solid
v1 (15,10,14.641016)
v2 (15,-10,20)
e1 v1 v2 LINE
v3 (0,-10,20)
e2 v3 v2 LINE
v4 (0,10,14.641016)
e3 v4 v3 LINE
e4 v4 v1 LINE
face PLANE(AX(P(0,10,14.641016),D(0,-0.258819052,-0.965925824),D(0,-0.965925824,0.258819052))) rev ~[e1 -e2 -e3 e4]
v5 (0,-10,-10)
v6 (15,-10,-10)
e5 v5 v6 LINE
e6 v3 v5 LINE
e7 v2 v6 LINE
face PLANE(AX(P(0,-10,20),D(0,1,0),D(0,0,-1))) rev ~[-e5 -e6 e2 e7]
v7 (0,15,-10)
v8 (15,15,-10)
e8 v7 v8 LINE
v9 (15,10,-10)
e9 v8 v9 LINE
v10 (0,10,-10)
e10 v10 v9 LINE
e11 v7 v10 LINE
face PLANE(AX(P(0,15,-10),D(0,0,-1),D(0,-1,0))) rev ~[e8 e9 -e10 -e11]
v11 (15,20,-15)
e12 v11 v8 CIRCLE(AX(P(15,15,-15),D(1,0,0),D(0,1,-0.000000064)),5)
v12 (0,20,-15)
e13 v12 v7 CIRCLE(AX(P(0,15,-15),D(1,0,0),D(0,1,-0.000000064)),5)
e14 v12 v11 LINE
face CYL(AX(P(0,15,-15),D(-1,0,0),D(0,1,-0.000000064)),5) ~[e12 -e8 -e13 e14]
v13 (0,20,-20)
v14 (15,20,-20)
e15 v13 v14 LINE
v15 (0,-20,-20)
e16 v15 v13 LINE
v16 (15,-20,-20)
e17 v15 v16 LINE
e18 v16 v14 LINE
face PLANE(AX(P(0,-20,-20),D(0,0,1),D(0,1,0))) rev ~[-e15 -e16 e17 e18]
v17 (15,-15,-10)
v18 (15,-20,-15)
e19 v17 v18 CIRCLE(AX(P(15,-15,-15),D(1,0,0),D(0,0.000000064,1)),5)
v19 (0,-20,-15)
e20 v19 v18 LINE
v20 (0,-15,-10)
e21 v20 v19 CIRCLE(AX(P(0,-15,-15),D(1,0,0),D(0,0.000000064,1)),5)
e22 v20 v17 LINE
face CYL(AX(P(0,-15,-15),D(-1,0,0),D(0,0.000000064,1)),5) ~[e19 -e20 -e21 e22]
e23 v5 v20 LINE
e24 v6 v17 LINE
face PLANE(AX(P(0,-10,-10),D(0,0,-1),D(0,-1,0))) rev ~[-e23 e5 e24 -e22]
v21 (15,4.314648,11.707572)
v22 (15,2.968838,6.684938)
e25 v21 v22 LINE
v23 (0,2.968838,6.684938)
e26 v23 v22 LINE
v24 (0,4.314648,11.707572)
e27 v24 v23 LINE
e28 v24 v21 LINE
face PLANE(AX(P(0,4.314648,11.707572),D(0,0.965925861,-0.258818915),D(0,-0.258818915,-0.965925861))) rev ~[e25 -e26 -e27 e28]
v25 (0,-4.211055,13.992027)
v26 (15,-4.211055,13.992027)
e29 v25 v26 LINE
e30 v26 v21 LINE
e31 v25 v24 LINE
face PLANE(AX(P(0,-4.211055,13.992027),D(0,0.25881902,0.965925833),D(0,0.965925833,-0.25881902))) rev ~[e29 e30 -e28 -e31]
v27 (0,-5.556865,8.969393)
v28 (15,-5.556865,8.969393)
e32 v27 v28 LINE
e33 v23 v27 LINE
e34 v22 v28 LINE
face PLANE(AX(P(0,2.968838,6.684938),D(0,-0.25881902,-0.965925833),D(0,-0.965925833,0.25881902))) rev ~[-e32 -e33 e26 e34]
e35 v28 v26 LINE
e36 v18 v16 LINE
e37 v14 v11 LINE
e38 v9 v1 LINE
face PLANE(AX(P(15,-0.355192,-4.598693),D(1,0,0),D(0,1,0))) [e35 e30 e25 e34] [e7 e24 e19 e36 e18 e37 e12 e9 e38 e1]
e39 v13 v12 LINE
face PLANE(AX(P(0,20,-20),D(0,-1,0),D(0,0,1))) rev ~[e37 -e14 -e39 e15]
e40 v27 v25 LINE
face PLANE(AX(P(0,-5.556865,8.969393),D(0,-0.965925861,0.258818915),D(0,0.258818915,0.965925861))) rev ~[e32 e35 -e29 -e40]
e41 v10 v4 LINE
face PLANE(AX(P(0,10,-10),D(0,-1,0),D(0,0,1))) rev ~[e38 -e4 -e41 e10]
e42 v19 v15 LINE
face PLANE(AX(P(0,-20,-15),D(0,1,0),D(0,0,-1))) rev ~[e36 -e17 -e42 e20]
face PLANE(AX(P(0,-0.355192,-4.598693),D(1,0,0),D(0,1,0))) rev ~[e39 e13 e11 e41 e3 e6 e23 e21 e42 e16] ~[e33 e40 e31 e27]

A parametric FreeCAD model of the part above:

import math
import FreeCAD as App
import Part
import Sketcher
from FreeCAD import Vector
Q = App.Units.Quantity

doc = App.newDocument("Part")
params = doc.addObject("Spreadsheet::Sheet", "Params")
for row, (alias, value) in enumerate([
    ("sketch1_radius", "5 mm"),
    ("sketch1_width", "40 mm"),
    ("sketch1_width2", "5 mm"),
    ("sketch1_height", "30 mm"),
    ("pad1_length", "15 mm"),
], start=1):
    params.set(f"A{row}", alias)
    params.set(f"B{row}", "=" + value)
    params.setAlias(f"B{row}", alias)

body = doc.addObject("PartDesign::Body", "Body")

# Sketch on YZ plane
sketch1 = body.newObject("Sketcher::SketchObject", "Sketch")
sketch1.AttachmentSupport = (doc.getObject("YZ_Plane"), [""])
sketch1.MapMode = "FlatFace"
sketch1.addGeometry(Part.LineSegment(Vector(-20, -20, 0), Vector(20, -20, 0)), False)
sketch1.addGeometry(Part.LineSegment(Vector(20, -20, 0), Vector(20, -15, 0)), False)
sketch1.addGeometry(Part.ArcOfCircle(Part.Circle(Vector(15, -15, 0), Vector(0, 0, 1), 5), math.radians(-0.000004), math.radians(90.000004)), False)
sketch1.addGeometry(Part.LineSegment(Vector(15, -10, 0), Vector(10, -10, 0)), False)
sketch1.addGeometry(Part.LineSegment(Vector(10, -10, 0), Vector(10, 14.641016, 0)), False)
sketch1.addGeometry(Part.LineSegment(Vector(10, 14.641016, 0), Vector(-10, 20, 0)), False)
sketch1.addGeometry(Part.LineSegment(Vector(-10, 20, 0), Vector(-10, -10, 0)), False)
sketch1.addGeometry(Part.LineSegment(Vector(-10, -10, 0), Vector(-15, -10, 0)), False)
sketch1.addGeometry(Part.ArcOfCircle(Part.Circle(Vector(-15, -15, 0), Vector(0, 0, 1), 5), math.radians(89.999996), math.radians(180.000004)), False)
sketch1.addGeometry(Part.LineSegment(Vector(-20, -15, 0), Vector(-20, -20, 0)), False)
sketch1.addGeometry(Part.LineSegment(Vector(-5.556865, 8.969393, 0), Vector(-4.211055, 13.992027, 0)), False)
sketch1.addGeometry(Part.LineSegment(Vector(-4.211055, 13.992027, 0), Vector(4.314648, 11.707572, 0)), False)
sketch1.addGeometry(Part.LineSegment(Vector(4.314648, 11.707572, 0), Vector(2.968838, 6.684938, 0)), False)
sketch1.addGeometry(Part.LineSegment(Vector(2.968838, 6.684938, 0), Vector(-5.556865, 8.969393, 0)), False)
sketch1.addConstraint(Sketcher.Constraint("Coincident", 0, 2, 1, 1))
sketch1.addConstraint(Sketcher.Constraint("Tangent", 1, 2, 2, 1))
sketch1.addConstraint(Sketcher.Constraint("Tangent", 2, 2, 3, 1))
sketch1.addConstraint(Sketcher.Constraint("Coincident", 3, 2, 4, 1))
sketch1.addConstraint(Sketcher.Constraint("Coincident", 4, 2, 5, 1))
sketch1.addConstraint(Sketcher.Constraint("Coincident", 5, 2, 6, 1))
sketch1.addConstraint(Sketcher.Constraint("Coincident", 6, 2, 7, 1))
sketch1.addConstraint(Sketcher.Constraint("Tangent", 7, 2, 8, 1))
sketch1.addConstraint(Sketcher.Constraint("Tangent", 8, 2, 9, 1))
sketch1.addConstraint(Sketcher.Constraint("Coincident", 9, 2, 0, 1))
sketch1.addConstraint(Sketcher.Constraint("Coincident", 10, 2, 11, 1))
sketch1.addConstraint(Sketcher.Constraint("Coincident", 11, 2, 12, 1))
sketch1.addConstraint(Sketcher.Constraint("Coincident", 12, 2, 13, 1))
sketch1.addConstraint(Sketcher.Constraint("Coincident", 13, 2, 10, 1))
sketch1.addConstraint(Sketcher.Constraint("Horizontal", 0))
sketch1.addConstraint(Sketcher.Constraint("Vertical", 1))
sketch1.addConstraint(Sketcher.Constraint("Horizontal", 3))
sketch1.addConstraint(Sketcher.Constraint("Vertical", 4))
sketch1.addConstraint(Sketcher.Constraint("Vertical", 6))
sketch1.addConstraint(Sketcher.Constraint("Horizontal", 7))
sketch1.addConstraint(Sketcher.Constraint("Vertical", 9))
sketch1.addConstraint(Sketcher.Constraint("Equal", 2, 8))
sketch1.addConstraint(Sketcher.Constraint("Symmetric", 2, 3, 8, 3, -2))
sketch1.addConstraint(Sketcher.Constraint("Perpendicular", 5, 10))
sketch1.addConstraint(Sketcher.Constraint("Perpendicular", 10, 11))
sketch1.addConstraint(Sketcher.Constraint("Perpendicular", 11, 12))
sketch1.addConstraint(Sketcher.Constraint("Perpendicular", 12, 13))
sketch1.addConstraint(Sketcher.Constraint("Equal", 3, 7))
sketch1.addConstraint(Sketcher.Constraint("Equal", 7, 1))
sketch1.addConstraint(Sketcher.Constraint("Radius", 2, 5.0))
sketch1.addConstraint(Sketcher.Constraint("DistanceX", 0, 1, 0, 2, 40.0))
sketch1.addConstraint(Sketcher.Constraint("DistanceX", 3, 2, 3, 1, 5.0))
sketch1.addConstraint(Sketcher.Constraint("DistanceY", 6, 2, 6, 1, 30.0))
sketch1.addConstraint(Sketcher.Constraint("Angle", 5, Q("165 deg")))
sketch1.addConstraint(Sketcher.Constraint("DistanceY", 2, 3, -1, 1, 15.0))
sketch1.addConstraint(Sketcher.Constraint("DistanceY", 10, 2, 4, 2, 0.648989))
sketch1.addConstraint(Sketcher.Constraint("DistanceY", 3, 2, 11, 2, 21.707572))
sketch1.addConstraint(Sketcher.Constraint("DistanceX", 12, 2, 11, 2, 1.34581))
sketch1.addConstraint(Sketcher.Constraint("DistanceX", 10, 2, -1, 1, 4.211055))
sketch1.setExpression("Constraints[29]", "Params.sketch1_radius")
sketch1.setExpression("Constraints[30]", "Params.sketch1_width")
sketch1.setExpression("Constraints[31]", "Params.sketch1_width2")
sketch1.setExpression("Constraints[32]", "Params.sketch1_height")
pad1 = body.newObject("PartDesign::Pad", "Pad")
pad1.Profile = sketch1
pad1.setExpression("Length", "Params.pad1_length")

doc.recompute()
